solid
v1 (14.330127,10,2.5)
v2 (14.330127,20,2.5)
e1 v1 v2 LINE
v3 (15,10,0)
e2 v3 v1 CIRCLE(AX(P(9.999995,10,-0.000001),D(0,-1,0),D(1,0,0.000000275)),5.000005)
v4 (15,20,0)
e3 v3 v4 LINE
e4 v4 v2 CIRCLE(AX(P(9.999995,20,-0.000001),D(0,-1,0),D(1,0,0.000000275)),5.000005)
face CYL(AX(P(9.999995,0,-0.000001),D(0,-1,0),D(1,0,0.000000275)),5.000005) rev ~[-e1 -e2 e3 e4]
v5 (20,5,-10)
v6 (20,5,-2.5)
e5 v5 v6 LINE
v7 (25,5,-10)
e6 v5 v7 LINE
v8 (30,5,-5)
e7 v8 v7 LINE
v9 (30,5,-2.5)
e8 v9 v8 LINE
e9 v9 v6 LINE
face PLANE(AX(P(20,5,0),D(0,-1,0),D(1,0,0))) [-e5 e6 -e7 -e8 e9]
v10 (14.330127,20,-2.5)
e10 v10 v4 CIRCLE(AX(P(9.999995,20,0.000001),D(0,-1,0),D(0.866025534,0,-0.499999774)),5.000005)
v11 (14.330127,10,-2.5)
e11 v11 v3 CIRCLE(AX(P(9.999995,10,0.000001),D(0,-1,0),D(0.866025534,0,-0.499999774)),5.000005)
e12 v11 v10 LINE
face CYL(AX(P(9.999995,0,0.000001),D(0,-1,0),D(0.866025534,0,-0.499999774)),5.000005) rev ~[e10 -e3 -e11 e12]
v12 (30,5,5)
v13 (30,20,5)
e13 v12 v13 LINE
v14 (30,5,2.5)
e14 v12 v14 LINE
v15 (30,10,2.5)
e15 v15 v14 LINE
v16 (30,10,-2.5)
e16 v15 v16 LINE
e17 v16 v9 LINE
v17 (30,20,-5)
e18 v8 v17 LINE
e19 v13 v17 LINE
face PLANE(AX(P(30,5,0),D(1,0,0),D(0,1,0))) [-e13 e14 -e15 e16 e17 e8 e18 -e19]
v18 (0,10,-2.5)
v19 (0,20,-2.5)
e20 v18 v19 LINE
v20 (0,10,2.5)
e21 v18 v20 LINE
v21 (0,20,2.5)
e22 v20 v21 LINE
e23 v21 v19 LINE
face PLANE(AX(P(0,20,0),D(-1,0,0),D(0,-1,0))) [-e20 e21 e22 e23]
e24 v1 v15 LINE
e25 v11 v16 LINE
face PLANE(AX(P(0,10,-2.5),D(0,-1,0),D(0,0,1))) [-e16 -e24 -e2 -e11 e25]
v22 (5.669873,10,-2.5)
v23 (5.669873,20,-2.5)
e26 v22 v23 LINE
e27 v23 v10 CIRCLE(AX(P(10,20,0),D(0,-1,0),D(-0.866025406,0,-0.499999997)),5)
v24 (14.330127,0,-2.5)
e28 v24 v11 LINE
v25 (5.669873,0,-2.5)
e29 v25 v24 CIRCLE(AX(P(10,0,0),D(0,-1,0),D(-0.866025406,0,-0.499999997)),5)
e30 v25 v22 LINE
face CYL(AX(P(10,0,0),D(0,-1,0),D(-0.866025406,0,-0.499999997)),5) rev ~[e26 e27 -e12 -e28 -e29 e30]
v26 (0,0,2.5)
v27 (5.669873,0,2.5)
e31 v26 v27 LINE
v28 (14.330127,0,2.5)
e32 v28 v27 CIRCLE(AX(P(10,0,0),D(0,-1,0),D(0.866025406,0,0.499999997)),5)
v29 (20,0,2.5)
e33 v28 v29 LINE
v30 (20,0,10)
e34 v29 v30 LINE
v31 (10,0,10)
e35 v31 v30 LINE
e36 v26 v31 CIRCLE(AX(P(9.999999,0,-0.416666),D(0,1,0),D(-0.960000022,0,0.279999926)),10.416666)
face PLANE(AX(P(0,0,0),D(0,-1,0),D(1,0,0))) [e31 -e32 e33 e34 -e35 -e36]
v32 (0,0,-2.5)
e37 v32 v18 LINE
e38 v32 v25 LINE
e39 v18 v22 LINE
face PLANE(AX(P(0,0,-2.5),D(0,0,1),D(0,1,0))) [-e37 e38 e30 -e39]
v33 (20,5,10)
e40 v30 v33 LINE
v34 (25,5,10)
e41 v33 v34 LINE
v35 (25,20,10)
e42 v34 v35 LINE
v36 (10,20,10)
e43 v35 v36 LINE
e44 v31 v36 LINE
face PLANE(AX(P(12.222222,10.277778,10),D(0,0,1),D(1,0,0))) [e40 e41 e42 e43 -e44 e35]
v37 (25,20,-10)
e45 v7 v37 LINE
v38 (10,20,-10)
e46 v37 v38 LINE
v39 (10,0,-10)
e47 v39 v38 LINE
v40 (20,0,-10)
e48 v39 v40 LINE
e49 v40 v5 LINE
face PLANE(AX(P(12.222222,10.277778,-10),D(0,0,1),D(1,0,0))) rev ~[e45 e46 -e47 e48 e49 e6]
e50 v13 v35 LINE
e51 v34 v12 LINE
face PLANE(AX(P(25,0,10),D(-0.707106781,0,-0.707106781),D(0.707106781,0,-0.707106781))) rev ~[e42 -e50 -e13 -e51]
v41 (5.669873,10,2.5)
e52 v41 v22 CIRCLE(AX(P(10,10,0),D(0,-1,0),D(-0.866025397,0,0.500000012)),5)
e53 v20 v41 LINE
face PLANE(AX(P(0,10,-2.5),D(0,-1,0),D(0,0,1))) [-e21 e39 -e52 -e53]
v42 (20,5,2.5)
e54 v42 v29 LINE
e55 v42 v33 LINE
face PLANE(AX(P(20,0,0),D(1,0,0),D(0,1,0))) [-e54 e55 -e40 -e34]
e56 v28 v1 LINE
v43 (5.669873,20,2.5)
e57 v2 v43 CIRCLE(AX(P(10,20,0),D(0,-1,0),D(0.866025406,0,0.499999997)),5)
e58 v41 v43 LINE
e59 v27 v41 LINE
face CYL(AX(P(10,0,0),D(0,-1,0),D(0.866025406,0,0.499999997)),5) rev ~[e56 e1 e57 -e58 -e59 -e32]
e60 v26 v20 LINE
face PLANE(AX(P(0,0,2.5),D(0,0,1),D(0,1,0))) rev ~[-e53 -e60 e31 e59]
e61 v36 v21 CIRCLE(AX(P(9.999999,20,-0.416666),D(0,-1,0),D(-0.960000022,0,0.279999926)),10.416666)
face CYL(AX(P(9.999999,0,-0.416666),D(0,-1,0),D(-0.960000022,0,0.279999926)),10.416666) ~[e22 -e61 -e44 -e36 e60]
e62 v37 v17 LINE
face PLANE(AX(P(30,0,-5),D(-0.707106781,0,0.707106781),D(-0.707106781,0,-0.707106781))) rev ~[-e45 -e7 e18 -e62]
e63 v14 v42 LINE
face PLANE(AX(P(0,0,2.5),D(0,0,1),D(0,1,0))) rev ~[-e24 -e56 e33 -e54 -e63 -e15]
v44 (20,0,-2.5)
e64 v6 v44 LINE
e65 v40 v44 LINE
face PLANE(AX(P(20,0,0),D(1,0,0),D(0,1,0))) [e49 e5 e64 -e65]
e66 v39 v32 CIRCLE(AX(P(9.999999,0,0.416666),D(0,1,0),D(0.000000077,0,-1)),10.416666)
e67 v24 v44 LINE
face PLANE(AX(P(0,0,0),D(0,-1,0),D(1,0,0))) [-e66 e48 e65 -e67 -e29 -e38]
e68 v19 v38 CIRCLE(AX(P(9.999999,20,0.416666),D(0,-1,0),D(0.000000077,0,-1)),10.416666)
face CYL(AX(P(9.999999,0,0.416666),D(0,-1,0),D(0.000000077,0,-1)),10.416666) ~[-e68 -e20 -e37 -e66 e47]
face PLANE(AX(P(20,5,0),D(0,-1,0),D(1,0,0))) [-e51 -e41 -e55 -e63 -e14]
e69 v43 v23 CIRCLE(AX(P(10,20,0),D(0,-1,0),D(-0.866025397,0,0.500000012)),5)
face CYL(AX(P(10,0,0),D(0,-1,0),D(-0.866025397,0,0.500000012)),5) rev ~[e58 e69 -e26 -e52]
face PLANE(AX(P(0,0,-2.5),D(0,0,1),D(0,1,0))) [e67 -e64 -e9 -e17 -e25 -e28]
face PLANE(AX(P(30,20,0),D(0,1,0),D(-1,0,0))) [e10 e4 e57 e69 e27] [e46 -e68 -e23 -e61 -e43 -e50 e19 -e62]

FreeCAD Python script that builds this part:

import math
import FreeCAD as App
import Part
import Sketcher

V = App.Vector


def add_polygon(sketch, points):
    """Adds a closed chain of lines whose ends are joined by coincident constraints."""
    first, n = sketch.GeometryCount, len(points)
    for a, b in zip(points, points[1:] + points[:1]):
        sketch.addGeometry(Part.LineSegment(App.Vector(*a, 0), App.Vector(*b, 0)), False)
    for i in range(n):
        sketch.addConstraint(Sketcher.Constraint("Coincident", first + i, 2, first + (i + 1) % n, 1))

doc = App.newDocument("Part")
body = doc.addObject("PartDesign::Body", "Body")

sketch1 = doc.addObject("Sketcher::SketchObject", "Sketch")
body.addObject(sketch1)
sketch1.AttachmentSupport = (doc.XY_Plane, [""])
sketch1.MapMode = "FlatFace"
add_polygon(sketch1, [(0, 20), (0, 0), (20, 0), (20, 5), (30, 5), (30, 20)])
sketch1.addConstraint([
    Sketcher.Constraint("Vertical", 0),
    Sketcher.Constraint("Horizontal", 1),
    Sketcher.Constraint("Vertical", 2),
    Sketcher.Constraint("Horizontal", 3),
    Sketcher.Constraint("Vertical", 4),
    Sketcher.Constraint("Horizontal", 5),
    Sketcher.Constraint("Coincident", 0, 2, -1, 1),
    Sketcher.Constraint("Equal", 1, 0),
    Sketcher.Constraint("DistanceX", 1, 1, 1, 2, 20.0),
    Sketcher.Constraint("DistanceX", 3, 1, 3, 2, 10.0),
    Sketcher.Constraint("DistanceY", 2, 1, 2, 2, 5.0),
])
pad1 = doc.addObject("PartDesign::Pad", "Pad")
body.addObject(pad1)
pad1.Profile = sketch1
pad1.Length = 20
pad1.Midplane = True

sketch2 = doc.addObject("Sketcher::SketchObject", "Sketch001")
body.addObject(sketch2)
sketch2.AttachmentSupport = (doc.XZ_Plane, [""])
sketch2.MapMode = "FlatFace"
sketch2.addGeometry(Part.LineSegment(V(0, 10, 0), V(0, 2.5, 0)), False)
sketch2.addGeometry(Part.ArcOfCircle(Part.Circle(V(10, -0.4, 0), V(0, 0, 1), 10.4), math.radians(90), math.radians(164)), False)
sketch2.addGeometry(Part.LineSegment(V(10, 10, 0), V(0, 10, 0)), False)
sketch2.addGeometry(Part.ArcOfCircle(Part.Circle(V(10, 0.4, 0), V(0, 0, 1), 10.4), math.radians(-164), math.radians(-90)), False)
sketch2.addGeometry(Part.LineSegment(V(0, -2.5, 0), V(0, -10, 0)), False)
sketch2.addGeometry(Part.LineSegment(V(0, -10, 0), V(10, -10, 0)), False)
add_polygon(sketch2, [(25, 10), (30, 5), (30, 10)])
add_polygon(sketch2, [(30, -10), (30, -5), (25, -10)])
sketch2.addGeometry(Part.ArcOfCircle(Part.Circle(V(10, 0, 0), V(0, 0, 1), 5), math.radians(-30), math.radians(0)), False)
sketch2.addGeometry(Part.ArcOfCircle(Part.Circle(V(10, 0, 0), V(0, 0, 1), 5), math.radians(0), math.radians(30)), False)
sketch2.addGeometry(Part.ArcOfCircle(Part.Circle(V(10, 0, 0), V(0, 0, 1), 5), math.radians(30), math.radians(150)), False)
sketch2.addGeometry(Part.ArcOfCircle(Part.Circle(V(10, 0, 0), V(0, 0, 1), 5), math.radians(150), math.radians(210)), False)
sketch2.addGeometry(Part.ArcOfCircle(Part.Circle(V(10, 0, 0), V(0, 0, 1), 5), math.radians(-150), math.radians(-30)), False)
sketch2.addConstraint([
    Sketcher.Constraint("Coincident", 0, 2, 1, 2),
    Sketcher.Constraint("Tangent", 1, 1, 2, 1),
    Sketcher.Constraint("Coincident", 2, 2, 0, 1),
    Sketcher.Constraint("Coincident", 3, 1, 4, 1),
    Sketcher.Constraint("Coincident", 4, 2, 5, 1),
    Sketcher.Constraint("Tangent", 5, 2, 3, 2),
    Sketcher.Constraint("Tangent", 12, 2, 13, 1),
    Sketcher.Constraint("Tangent", 13, 2, 14, 1),
    Sketcher.Constraint("Tangent", 14, 2, 15, 1),
    Sketcher.Constraint("Tangent", 15, 2, 16, 1),
    Sketcher.Constraint("Tangent", 16, 2, 12, 1),
    Sketcher.Constraint("Vertical", 0),
    Sketcher.Constraint("Horizontal", 2),
    Sketcher.Constraint("Vertical", 4),
    Sketcher.Constraint("Horizontal", 5),
    Sketcher.Constraint("Vertical", 7),
    Sketcher.Constraint("Horizontal", 8),
    Sketcher.Constraint("Vertical", 9),
    Sketcher.Constraint("Horizontal", 11),
    Sketcher.Constraint("Coincident", 14, 3, 12, 3),
    Sketcher.Constraint("Equal", 1, 3),
    Sketcher.Constraint("Symmetric", 0, 2, 3, 1, -1, 1),
    Sketcher.Constraint("Symmetric", 1, 3, 3, 3, -1),
    Sketcher.Constraint("Symmetric", 6, 2, 9, 2, -1),
    Sketcher.Constraint("Symmetric", 8, 2, 10, 2, -1),
    Sketcher.Constraint("Symmetric", 14, 2, 15, 2, -1),
    Sketcher.Constraint("PointOnObject", 12, 2, -1),
    Sketcher.Constraint("Perpendicular", 6, 10),
    Sketcher.Constraint("Horizontal", 2, 2, 7, 2),
    Sketcher.Constraint("Horizontal", 0, 2, 13, 2),
    Sketcher.Constraint("Horizontal", 13, 2, 14, 2),
    Sketcher.Constraint("Horizontal", 15, 2, 16, 2),
    Sketcher.Constraint("Vertical", 3, 3, 14, 3),
    Sketcher.Constraint("Radius", 14, 5.0),
    Sketcher.Constraint("DistanceX", 2, 2, 2, 1, 10.0),
    Sketcher.Constraint("DistanceX", 8, 2, 8, 1, 5.0),
    Sketcher.Constraint("DistanceY", 0, 2, 0, 1, 7.5),
    Sketcher.Constraint("DistanceY", -1, 1, 1, 1, 10.0),
    Sketcher.Constraint("DistanceX", -1, 1, 6, 2, 30.0),
])
pocket1 = doc.addObject("PartDesign::Pocket", "Pocket")
body.addObject(pocket1)
pocket1.Profile = sketch2
pocket1.Type = "ThroughAll"

sketch3 = doc.addObject("Sketcher::SketchObject", "Sketch002")
body.addObject(sketch3)
sketch3.AttachmentSupport = (doc.YZ_Plane, [""])
sketch3.MapMode = "FlatFace"
add_polygon(sketch3, [(0, 2), (0, -2), (10, -2), (10, 2)])
sketch3.addConstraint([
    Sketcher.Constraint("Vertical", 0),
    Sketcher.Constraint("Horizontal", 1),
    Sketcher.Constraint("Vertical", 2),
    Sketcher.Constraint("Horizontal", 3),
    Sketcher.Constraint("Symmetric", 0, 2, 3, 2, -1, 1),
    Sketcher.Constraint("DistanceX", 1, 1, 1, 2, 10.0),
    Sketcher.Constraint("DistanceY", 0, 2, 0, 1, 5.0),
])
pocket2 = doc.addObject("PartDesign::Pocket", "Pocket001")
body.addObject(pocket2)
pocket2.Profile = sketch3
pocket2.Type = "ThroughAll"
pocket2.Reversed = True

doc.recompute()
